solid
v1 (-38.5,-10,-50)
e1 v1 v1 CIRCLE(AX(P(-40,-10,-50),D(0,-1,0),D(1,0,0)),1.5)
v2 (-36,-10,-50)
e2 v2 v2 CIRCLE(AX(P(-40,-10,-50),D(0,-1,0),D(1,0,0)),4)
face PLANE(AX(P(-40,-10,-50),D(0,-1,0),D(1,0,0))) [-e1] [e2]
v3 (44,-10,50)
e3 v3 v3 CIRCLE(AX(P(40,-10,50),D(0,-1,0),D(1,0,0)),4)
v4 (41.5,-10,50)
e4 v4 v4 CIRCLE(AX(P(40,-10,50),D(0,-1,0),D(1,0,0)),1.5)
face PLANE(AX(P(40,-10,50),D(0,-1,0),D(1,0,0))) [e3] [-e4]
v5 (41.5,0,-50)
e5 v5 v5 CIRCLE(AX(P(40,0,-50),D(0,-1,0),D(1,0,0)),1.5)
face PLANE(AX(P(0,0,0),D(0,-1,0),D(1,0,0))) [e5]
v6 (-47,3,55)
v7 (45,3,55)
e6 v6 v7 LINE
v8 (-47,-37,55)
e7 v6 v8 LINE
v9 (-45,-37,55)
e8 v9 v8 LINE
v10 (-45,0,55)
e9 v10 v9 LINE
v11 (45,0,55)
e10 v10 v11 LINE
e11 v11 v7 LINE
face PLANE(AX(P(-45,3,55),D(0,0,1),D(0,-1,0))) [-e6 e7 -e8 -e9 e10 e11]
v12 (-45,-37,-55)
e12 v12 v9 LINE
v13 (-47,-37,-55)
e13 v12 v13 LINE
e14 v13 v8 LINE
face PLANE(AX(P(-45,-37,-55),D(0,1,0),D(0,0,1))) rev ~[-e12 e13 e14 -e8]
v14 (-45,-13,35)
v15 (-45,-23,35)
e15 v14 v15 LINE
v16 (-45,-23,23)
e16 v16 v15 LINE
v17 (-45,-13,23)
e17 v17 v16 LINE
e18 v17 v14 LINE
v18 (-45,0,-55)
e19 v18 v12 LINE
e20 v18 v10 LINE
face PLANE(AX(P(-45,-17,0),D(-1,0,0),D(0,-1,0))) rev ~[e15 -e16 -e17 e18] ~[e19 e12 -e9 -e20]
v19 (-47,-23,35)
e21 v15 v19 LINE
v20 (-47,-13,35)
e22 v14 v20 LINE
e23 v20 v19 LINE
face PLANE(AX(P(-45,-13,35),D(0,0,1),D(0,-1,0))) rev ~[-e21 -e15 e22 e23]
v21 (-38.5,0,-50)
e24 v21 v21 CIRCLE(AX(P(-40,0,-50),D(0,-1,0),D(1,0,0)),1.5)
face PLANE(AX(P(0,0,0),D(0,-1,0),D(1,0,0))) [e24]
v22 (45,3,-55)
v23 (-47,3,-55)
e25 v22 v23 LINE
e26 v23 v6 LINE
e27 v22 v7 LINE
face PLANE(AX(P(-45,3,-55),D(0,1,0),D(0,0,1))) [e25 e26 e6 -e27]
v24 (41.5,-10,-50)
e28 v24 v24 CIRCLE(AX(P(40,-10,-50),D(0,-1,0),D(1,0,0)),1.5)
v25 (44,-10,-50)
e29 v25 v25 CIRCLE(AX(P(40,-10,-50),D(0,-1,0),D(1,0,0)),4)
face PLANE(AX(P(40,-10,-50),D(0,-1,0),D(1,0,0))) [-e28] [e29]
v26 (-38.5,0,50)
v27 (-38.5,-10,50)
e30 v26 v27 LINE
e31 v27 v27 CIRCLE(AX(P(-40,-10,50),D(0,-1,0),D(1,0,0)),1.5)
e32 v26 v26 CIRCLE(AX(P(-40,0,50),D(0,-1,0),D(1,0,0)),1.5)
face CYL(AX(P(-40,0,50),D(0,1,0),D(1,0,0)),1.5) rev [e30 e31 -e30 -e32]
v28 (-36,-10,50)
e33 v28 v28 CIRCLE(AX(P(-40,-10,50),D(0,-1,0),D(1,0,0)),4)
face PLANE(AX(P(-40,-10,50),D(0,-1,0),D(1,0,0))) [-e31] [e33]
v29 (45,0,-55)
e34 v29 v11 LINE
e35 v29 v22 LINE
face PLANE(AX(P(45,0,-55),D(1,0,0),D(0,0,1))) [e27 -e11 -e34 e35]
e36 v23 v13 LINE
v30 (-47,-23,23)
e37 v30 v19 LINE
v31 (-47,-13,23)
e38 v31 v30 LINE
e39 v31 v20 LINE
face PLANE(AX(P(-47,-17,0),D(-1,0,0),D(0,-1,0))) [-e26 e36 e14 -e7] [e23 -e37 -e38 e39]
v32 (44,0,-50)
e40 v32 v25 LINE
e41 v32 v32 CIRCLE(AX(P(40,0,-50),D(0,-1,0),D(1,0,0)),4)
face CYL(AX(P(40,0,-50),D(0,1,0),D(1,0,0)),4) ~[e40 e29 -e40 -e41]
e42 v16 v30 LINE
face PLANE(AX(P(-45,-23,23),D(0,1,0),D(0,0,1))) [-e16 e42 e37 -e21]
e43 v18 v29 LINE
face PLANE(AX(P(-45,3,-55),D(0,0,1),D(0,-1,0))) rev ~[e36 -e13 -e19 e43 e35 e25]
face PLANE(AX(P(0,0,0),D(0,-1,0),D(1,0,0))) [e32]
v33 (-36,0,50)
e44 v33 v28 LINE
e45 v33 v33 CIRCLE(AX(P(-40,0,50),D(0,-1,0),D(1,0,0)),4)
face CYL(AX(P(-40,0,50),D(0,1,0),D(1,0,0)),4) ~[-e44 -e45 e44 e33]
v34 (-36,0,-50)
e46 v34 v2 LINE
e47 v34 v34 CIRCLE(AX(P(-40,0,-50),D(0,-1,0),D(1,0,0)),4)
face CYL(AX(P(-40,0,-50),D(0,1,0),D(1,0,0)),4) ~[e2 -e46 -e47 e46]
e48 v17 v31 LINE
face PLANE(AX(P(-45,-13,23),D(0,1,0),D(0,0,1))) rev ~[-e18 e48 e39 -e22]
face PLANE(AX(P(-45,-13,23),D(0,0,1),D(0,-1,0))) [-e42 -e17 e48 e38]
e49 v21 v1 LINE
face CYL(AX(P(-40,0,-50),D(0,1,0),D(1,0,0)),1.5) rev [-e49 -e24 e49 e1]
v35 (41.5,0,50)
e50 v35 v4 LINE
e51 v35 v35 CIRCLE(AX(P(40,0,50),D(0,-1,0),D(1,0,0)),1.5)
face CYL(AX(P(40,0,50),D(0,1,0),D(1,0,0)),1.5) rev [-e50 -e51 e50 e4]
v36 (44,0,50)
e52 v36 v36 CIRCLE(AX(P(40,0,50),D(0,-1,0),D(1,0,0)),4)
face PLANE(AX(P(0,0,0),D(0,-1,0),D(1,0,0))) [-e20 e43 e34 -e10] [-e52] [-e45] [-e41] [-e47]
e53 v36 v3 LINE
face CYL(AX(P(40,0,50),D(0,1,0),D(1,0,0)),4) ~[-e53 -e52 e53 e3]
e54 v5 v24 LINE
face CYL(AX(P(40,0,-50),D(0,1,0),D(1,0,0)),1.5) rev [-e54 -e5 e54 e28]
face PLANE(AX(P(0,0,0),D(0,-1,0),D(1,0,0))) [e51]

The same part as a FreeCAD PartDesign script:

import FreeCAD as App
import Part
import Sketcher
Q = App.Units.Quantity

doc = App.newDocument("Part")
params = doc.addObject("Spreadsheet::Sheet", "Params")
for row, (alias, value) in enumerate([
    ("sketch1_width", "90 mm"),
    ("sketch1_height", "110 mm"),
    ("pad1_length", "3 mm"),
    ("sketch2_diameter", "8 mm"),
    ("sketch2_diameter2", "3 mm"),
    ("pad2_length", "10 mm"),
    ("sketch3_width", "40 mm"),
    ("sketch3_width2", "10 mm"),
    ("sketch3_height", "110 mm"),
    ("sketch3_height2", "12 mm"),
    ("pad3_length", "2 mm"),
], start=1):
    params.set(f"A{row}", alias)
    params.set(f"B{row}", "=" + value)
    params.setAlias(f"B{row}", alias)

body = doc.addObject("PartDesign::Body", "Body")

# Sketch on XZ plane
sketch1 = body.newObject("Sketcher::SketchObject", "Sketch")
sketch1.AttachmentSupport = (doc.getObject("XZ_Plane"), [""])
sketch1.MapMode = "FlatFace"
sketch1.addGeometry([
    Part.LineSegment(App.Vector(-45, 55, 0), App.Vector(-45, -55, 0)),
    Part.LineSegment(App.Vector(-45, -55, 0), App.Vector(45, -55, 0)),
    Part.LineSegment(App.Vector(45, -55, 0), App.Vector(45, 55, 0)),
    Part.LineSegment(App.Vector(45, 55, 0), App.Vector(-45, 55, 0)),
], False)
sketch1.addConstraint([
    Sketcher.Constraint("Coincident", 0, 2, 1, 1),
    Sketcher.Constraint("Coincident", 1, 2, 2, 1),
    Sketcher.Constraint("Coincident", 2, 2, 3, 1),
    Sketcher.Constraint("Coincident", 3, 2, 0, 1),
    Sketcher.Constraint("Vertical", 0),
    Sketcher.Constraint("Horizontal", 1),
    Sketcher.Constraint("Vertical", 2),
    Sketcher.Constraint("Horizontal", 3),
    Sketcher.Constraint("Symmetric", 0, 2, 2, 2, -1, 1),
    Sketcher.Constraint("DistanceX", 1, 1, 1, 2, Q("90 mm")),
    Sketcher.Constraint("DistanceY", 0, 2, 0, 1, Q("110 mm")),
])
sketch1.setExpression("Constraints[9]", "Params.sketch1_width")
sketch1.setExpression("Constraints[10]", "Params.sketch1_height")
pad1 = body.newObject("PartDesign::Pad", "Pad")
pad1.Profile = sketch1
pad1.setExpression("Length", "Params.pad1_length")
pad1.Reversed = True

# Sketch on XZ plane
sketch2 = body.newObject("Sketcher::SketchObject", "Sketch001")
sketch2.AttachmentSupport = (doc.getObject("XZ_Plane"), [""])
sketch2.MapMode = "FlatFace"
sketch2.addGeometry([
    Part.Circle(App.Vector(40, 50, 0), App.Vector(0, 0, 1), 4),  # 0
    Part.Circle(App.Vector(40, 50, 0), App.Vector(0, 0, 1), 1.5),  # 1
    Part.Circle(App.Vector(-40, 50, 0), App.Vector(0, 0, 1), 4),  # 2
    Part.Circle(App.Vector(-40, 50, 0), App.Vector(0, 0, 1), 1.5),  # 3
    Part.Circle(App.Vector(-40, -50, 0), App.Vector(0, 0, 1), 4),  # 4
    Part.Circle(App.Vector(-40, -50, 0), App.Vector(0, 0, 1), 1.5),  # 5
    Part.Circle(App.Vector(40, -50, 0), App.Vector(0, 0, 1), 4),  # 6
    Part.Circle(App.Vector(40, -50, 0), App.Vector(0, 0, 1), 1.5),  # 7
], False)
sketch2.addConstraint([
    Sketcher.Constraint("Coincident", 1, 3, 0, 3),
    Sketcher.Constraint("Coincident", 3, 3, 2, 3),
    Sketcher.Constraint("Coincident", 5, 3, 4, 3),
    Sketcher.Constraint("Coincident", 7, 3, 6, 3),
    Sketcher.Constraint("Equal", 0, 2),
    Sketcher.Constraint("Equal", 1, 3),
    Sketcher.Constraint("Equal", 2, 4),
    Sketcher.Constraint("Equal", 3, 5),
    Sketcher.Constraint("Equal", 4, 6),
    Sketcher.Constraint("Equal", 5, 7),
    Sketcher.Constraint("Symmetric", 0, 3, 4, 3, -1, 1),
    Sketcher.Constraint("Symmetric", 2, 3, 6, 3, -1, 1),
    Sketcher.Constraint("Symmetric", 0, 3, 2, 3, -2),
    Sketcher.Constraint("Diameter", 0, Q("8 mm")),
    Sketcher.Constraint("Diameter", 1, Q("3 mm")),
    Sketcher.Constraint("DistanceX", -1, 1, 0, 3, Q("40 mm")),
    Sketcher.Constraint("DistanceY", -1, 1, 0, 3, Q("50 mm")),
])
sketch2.setExpression("Constraints[13]", "Params.sketch2_diameter")
sketch2.setExpression("Constraints[14]", "Params.sketch2_diameter2")
pad2 = body.newObject("PartDesign::Pad", "Pad001")
pad2.Profile = sketch2
pad2.setExpression("Length", "Params.pad2_length")

# Sketch on YZ plane
sketch3 = body.newObject("Sketcher::SketchObject", "Sketch002")
sketch3.AttachmentSupport = (doc.getObject("YZ_Plane"), [""])
sketch3.MapMode = "FlatFace"
sketch3.AttachmentOffset = App.Placement(App.Vector(0, 0, -45), App.Rotation())
sketch3.addGeometry([
    Part.LineSegment(App.Vector(3, 55, 0), App.Vector(3, -55, 0)),  # 0
    Part.LineSegment(App.Vector(3, -55, 0), App.Vector(-37, -55, 0)),  # 1
    Part.LineSegment(App.Vector(-37, -55, 0), App.Vector(-37, 55, 0)),  # 2
    Part.LineSegment(App.Vector(-37, 55, 0), App.Vector(3, 55, 0)),  # 3
    Part.LineSegment(App.Vector(-23, 23, 0), App.Vector(-13, 23, 0)),  # 4
    Part.LineSegment(App.Vector(-13, 23, 0), App.Vector(-13, 35, 0)),  # 5
    Part.LineSegment(App.Vector(-13, 35, 0), App.Vector(-23, 35, 0)),  # 6
    Part.LineSegment(App.Vector(-23, 35, 0), App.Vector(-23, 23, 0)),  # 7
], False)
sketch3.addConstraint([
    Sketcher.Constraint("Coincident", 0, 2, 1, 1),
    Sketcher.Constraint("Coincident", 1, 2, 2, 1),
    Sketcher.Constraint("Coincident", 2, 2, 3, 1),
    Sketcher.Constraint("Coincident", 3, 2, 0, 1),
    Sketcher.Constraint("Coincident", 4, 2, 5, 1),
    Sketcher.Constraint("Coincident", 5, 2, 6, 1),
    Sketcher.Constraint("Coincident", 6, 2, 7, 1),
    Sketcher.Constraint("Coincident", 7, 2, 4, 1),
    Sketcher.Constraint("Vertical", 0),
    Sketcher.Constraint("Horizontal", 1),
    Sketcher.Constraint("Vertical", 2),
    Sketcher.Constraint("Horizontal", 3),
    Sketcher.Constraint("Horizontal", 4),
    Sketcher.Constraint("Vertical", 5),
    Sketcher.Constraint("Horizontal", 6),
    Sketcher.Constraint("Vertical", 7),
    Sketcher.Constraint("DistanceX", 1, 2, 1, 1, Q("40 mm")),
    Sketcher.Constraint("DistanceX", 4, 1, 4, 2, Q("10 mm")),
    Sketcher.Constraint("DistanceY", 0, 2, 0, 1, Q("110 mm")),
    Sketcher.Constraint("DistanceY", 5, 1, 5, 2, Q("12 mm")),
    Sketcher.Constraint("DistanceX", -1, 1, 0, 2, Q("3 mm")),
    Sketcher.Constraint("DistanceY", 0, 2, -1, 1, Q("55 mm")),
    Sketcher.Constraint("DistanceX", 4, 2, -1, 1, Q("13 mm")),
    Sketcher.Constraint("DistanceY", -1, 1, 4, 2, Q("23 mm")),
])
sketch3.setExpression("Constraints[16]", "Params.sketch3_width")
sketch3.setExpression("Constraints[17]", "Params.sketch3_width2")
sketch3.setExpression("Constraints[18]", "Params.sketch3_height")
sketch3.setExpression("Constraints[19]", "Params.sketch3_height2")
pad3 = body.newObject("PartDesign::Pad", "Pad002")
pad3.Profile = sketch3
pad3.setExpression("Length", "Params.pad3_length")
pad3.Reversed = True

doc.recompute()
